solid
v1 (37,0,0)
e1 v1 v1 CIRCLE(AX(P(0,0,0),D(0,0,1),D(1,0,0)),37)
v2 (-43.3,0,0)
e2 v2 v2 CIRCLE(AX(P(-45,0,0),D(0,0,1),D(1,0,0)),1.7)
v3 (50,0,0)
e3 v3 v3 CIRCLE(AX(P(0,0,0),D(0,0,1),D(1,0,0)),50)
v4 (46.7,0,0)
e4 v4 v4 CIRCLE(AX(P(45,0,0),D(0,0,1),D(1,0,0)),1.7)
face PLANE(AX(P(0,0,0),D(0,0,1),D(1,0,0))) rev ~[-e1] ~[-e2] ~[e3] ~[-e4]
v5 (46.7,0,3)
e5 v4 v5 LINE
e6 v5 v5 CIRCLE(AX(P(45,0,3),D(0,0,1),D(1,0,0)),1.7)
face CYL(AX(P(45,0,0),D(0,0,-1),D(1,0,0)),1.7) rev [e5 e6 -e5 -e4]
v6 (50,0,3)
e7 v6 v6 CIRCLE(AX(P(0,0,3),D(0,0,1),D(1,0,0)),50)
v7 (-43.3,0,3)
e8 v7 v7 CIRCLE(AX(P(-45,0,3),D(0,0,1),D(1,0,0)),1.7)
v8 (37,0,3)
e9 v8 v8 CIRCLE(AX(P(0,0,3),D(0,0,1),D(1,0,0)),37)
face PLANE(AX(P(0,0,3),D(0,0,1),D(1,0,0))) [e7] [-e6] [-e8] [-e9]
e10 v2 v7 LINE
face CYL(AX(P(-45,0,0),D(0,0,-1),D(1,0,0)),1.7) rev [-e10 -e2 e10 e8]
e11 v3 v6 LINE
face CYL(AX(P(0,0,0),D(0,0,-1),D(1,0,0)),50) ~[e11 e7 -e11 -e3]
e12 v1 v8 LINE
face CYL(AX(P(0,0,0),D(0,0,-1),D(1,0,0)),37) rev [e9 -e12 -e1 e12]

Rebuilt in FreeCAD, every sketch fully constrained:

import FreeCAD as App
import Part
import Sketcher
Q = App.Units.Quantity

doc = App.newDocument("Part")
body = doc.addObject("PartDesign::Body", "Body")

sketch1 = body.newObject("Sketcher::SketchObject", "Sketch")
sketch1.AttachmentSupport = (doc.getObject("XY_Plane"), [""])
sketch1.MapMode = "FlatFace"
sketch1.addGeometry([
    Part.Circle(App.Vector(0, 0, 0), App.Vector(0, 0, 1), 50),
    Part.Circle(App.Vector(-45, 0, 0), App.Vector(0, 0, 1), 1.7),
    Part.Circle(App.Vector(0, 0, 0), App.Vector(0, 0, 1), 37),
    Part.Circle(App.Vector(45, 0, 0), App.Vector(0, 0, 1), 1.7),
], False)
sketch1.addConstraint([
    Sketcher.Constraint("Coincident", 0, 3, -1, 1),
    Sketcher.Constraint("Coincident", 2, 3, -1, 1),
    Sketcher.Constraint("Equal", 1, 3),
    Sketcher.Constraint("Symmetric", 1, 3, 3, 3, -1, 1),
    Sketcher.Constraint("PointOnObject", 1, 3, -1),
    Sketcher.Constraint("Diameter", 0, Q("100 mm")),
    Sketcher.Constraint("Diameter", 2, Q("74 mm")),
    Sketcher.Constraint("Diameter", 1, Q("3.4 mm")),
    Sketcher.Constraint("DistanceX", 1, 3, -1, 1, Q("45 mm")),
])
pad1 = body.newObject("PartDesign::Pad", "Pad")
pad1.Profile = sketch1
pad1.Length = 3

doc.recompute()
